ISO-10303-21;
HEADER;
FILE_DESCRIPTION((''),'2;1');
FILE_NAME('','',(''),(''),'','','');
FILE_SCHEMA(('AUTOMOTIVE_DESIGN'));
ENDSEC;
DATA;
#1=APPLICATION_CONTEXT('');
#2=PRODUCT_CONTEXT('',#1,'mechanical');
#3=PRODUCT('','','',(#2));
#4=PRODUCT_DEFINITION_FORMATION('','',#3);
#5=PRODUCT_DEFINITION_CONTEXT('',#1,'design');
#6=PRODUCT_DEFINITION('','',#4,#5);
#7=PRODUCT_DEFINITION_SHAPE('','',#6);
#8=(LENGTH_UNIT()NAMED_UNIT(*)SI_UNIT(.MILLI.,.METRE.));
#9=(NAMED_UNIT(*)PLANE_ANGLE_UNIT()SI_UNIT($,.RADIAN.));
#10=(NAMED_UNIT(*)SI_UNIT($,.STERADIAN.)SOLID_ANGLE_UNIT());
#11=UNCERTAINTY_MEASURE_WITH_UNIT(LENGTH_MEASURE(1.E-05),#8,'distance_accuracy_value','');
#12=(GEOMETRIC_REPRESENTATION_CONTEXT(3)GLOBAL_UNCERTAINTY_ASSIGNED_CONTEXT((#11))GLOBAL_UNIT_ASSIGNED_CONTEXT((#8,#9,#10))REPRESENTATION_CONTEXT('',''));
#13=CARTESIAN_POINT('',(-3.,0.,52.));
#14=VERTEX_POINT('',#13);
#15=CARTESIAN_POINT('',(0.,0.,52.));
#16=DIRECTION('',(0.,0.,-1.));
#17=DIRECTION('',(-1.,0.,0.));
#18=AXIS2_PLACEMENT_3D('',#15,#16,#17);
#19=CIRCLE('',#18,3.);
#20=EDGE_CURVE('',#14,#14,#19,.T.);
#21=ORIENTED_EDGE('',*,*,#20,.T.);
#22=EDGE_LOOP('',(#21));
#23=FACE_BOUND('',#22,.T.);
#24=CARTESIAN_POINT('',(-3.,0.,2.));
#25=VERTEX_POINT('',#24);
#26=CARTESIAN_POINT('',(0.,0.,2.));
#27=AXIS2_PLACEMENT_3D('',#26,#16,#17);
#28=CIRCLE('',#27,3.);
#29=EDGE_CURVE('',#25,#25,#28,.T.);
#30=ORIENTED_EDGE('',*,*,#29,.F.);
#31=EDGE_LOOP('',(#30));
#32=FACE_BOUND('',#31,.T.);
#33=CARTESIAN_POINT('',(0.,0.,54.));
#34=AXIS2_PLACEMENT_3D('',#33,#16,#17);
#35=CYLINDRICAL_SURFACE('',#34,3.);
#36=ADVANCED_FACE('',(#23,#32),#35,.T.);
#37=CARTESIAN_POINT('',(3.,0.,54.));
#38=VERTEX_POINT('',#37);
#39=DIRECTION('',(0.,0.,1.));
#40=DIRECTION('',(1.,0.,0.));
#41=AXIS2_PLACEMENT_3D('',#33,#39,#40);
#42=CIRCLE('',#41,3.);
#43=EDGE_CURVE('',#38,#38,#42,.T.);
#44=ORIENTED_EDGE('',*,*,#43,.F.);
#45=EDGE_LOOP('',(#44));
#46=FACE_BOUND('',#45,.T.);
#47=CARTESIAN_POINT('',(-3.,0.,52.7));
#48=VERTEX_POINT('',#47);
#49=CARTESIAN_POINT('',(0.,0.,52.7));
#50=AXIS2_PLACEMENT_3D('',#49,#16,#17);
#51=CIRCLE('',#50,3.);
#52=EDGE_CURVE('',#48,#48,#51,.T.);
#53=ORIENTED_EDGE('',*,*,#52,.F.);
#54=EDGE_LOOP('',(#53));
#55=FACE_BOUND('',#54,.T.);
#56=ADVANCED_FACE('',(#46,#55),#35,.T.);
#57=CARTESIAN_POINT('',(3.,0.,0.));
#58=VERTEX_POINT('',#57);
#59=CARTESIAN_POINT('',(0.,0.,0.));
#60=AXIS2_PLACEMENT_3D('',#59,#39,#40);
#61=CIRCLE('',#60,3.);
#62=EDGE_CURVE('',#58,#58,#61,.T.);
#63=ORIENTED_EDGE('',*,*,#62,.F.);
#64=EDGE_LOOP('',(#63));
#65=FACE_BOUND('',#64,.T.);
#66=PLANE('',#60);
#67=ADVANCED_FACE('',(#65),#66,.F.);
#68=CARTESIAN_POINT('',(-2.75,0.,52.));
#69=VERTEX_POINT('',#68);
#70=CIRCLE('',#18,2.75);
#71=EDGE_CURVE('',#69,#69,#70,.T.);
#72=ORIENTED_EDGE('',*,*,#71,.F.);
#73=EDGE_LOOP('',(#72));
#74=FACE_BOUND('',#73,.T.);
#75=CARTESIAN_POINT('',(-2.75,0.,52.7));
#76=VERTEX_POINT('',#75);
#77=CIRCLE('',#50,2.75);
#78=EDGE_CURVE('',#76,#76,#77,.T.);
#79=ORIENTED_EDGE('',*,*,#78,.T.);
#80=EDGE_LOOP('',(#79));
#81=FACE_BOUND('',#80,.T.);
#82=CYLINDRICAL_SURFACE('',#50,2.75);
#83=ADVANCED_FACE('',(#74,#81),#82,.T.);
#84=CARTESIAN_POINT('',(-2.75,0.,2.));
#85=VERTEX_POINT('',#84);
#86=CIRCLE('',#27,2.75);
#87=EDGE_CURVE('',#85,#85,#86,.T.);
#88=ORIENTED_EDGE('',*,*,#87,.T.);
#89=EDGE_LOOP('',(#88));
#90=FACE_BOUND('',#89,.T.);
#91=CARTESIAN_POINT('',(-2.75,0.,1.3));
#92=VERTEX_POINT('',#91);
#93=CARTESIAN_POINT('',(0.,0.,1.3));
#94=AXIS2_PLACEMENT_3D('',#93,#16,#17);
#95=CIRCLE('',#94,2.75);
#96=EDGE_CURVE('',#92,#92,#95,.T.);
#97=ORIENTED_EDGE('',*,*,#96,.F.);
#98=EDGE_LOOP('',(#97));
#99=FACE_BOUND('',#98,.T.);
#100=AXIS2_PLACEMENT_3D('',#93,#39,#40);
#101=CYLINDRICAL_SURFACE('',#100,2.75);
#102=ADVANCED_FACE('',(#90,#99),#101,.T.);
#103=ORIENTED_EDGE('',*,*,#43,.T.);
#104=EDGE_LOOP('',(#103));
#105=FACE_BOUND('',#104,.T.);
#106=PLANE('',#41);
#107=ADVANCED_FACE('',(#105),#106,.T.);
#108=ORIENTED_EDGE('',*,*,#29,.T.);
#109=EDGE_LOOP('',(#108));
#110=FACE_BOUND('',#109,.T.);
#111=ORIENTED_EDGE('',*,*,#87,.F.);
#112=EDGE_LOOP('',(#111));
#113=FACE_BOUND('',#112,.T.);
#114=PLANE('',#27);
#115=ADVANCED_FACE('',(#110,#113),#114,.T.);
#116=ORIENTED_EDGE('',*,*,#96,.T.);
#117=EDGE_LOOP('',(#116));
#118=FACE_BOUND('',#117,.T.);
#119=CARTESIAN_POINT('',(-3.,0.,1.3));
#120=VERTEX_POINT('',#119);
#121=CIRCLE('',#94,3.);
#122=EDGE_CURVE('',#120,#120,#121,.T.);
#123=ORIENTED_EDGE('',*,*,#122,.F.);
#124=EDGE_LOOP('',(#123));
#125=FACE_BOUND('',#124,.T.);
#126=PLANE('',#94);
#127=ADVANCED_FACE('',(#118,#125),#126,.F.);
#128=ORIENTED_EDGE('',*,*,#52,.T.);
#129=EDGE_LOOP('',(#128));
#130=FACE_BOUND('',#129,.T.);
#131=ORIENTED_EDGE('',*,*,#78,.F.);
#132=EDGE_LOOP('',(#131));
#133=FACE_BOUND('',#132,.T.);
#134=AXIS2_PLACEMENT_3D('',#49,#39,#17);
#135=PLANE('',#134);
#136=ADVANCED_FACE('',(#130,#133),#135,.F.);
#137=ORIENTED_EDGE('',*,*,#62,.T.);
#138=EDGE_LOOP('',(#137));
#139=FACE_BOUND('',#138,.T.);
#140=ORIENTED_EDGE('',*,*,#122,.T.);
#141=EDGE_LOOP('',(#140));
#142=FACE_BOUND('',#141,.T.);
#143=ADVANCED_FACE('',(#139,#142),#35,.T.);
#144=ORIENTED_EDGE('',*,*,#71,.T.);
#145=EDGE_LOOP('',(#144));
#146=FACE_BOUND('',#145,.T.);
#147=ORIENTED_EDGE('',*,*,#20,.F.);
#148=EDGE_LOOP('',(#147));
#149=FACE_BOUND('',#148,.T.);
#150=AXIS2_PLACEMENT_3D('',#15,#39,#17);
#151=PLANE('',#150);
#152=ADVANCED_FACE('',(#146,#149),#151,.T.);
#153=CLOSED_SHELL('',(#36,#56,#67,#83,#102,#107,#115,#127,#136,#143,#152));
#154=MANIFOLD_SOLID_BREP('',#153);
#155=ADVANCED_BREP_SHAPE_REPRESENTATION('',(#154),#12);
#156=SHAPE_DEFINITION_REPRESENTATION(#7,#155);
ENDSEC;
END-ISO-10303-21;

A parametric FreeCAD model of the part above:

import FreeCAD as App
import Part
import Sketcher

doc = App.newDocument("Part")
body = doc.addObject("PartDesign::Body", "Body")

sketch1 = body.newObject("Sketcher::SketchObject", "Sketch")
sketch1.AttachmentSupport = (doc.getObject("XY_Plane"), [""])
sketch1.MapMode = "FlatFace"
sketch1.addGeometry(Part.Circle(App.Vector(0, 0, 0), App.Vector(0, 0, 1), 3), False)
sketch1.addConstraint([
    Sketcher.Constraint("Coincident", 0, 3, -1, 1),
    Sketcher.Constraint("Diameter", 0, 6.0),
])
pad1 = body.newObject("PartDesign::Pad", "Pad")
pad1.Profile = sketch1
pad1.Length = 54

sketch2 = body.newObject("Sketcher::SketchObject", "Sketch001")
sketch2.AttachmentSupport = (doc.getObject("XY_Plane"), [""])
sketch2.MapMode = "FlatFace"
sketch2.AttachmentOffset = App.Placement(App.Vector(0, 0, 1.65), App.Rotation())
sketch2.addGeometry([
    Part.Circle(App.Vector(0, 0, 0), App.Vector(0, 0, 1), 3),
    Part.Circle(App.Vector(0, 0, 0), App.Vector(0, 0, 1), 2.8),
], False)
sketch2.addConstraint([
    Sketcher.Constraint("Coincident", 0, 3, -1, 1),
    Sketcher.Constraint("Coincident", 1, 3, -1, 1),
    Sketcher.Constraint("Diameter", 0, 6.0),
    Sketcher.Constraint("Diameter", 1, 5.5),
])
pocket1 = body.newObject("PartDesign::Pocket", "Pocket")
pocket1.Profile = sketch2
pocket1.Length = 0.7
pocket1.Midplane = True
doc.recompute()

datumplane = body.newObject("PartDesign::Plane", "DatumPlane")
datumplane.AttachmentSupport = (doc.getObject("XY_Plane"), [""])
datumplane.MapMode = "FlatFace"
datumplane.AttachmentOffset = App.Placement(App.Vector(0, 0, 27), App.Rotation())
mirrored = body.newObject("PartDesign::Mirrored", "Mirrored")
mirrored.Originals = [pocket1]
mirrored.MirrorPlane = (datumplane, [""])
body.Tip = mirrored

doc.recompute()
